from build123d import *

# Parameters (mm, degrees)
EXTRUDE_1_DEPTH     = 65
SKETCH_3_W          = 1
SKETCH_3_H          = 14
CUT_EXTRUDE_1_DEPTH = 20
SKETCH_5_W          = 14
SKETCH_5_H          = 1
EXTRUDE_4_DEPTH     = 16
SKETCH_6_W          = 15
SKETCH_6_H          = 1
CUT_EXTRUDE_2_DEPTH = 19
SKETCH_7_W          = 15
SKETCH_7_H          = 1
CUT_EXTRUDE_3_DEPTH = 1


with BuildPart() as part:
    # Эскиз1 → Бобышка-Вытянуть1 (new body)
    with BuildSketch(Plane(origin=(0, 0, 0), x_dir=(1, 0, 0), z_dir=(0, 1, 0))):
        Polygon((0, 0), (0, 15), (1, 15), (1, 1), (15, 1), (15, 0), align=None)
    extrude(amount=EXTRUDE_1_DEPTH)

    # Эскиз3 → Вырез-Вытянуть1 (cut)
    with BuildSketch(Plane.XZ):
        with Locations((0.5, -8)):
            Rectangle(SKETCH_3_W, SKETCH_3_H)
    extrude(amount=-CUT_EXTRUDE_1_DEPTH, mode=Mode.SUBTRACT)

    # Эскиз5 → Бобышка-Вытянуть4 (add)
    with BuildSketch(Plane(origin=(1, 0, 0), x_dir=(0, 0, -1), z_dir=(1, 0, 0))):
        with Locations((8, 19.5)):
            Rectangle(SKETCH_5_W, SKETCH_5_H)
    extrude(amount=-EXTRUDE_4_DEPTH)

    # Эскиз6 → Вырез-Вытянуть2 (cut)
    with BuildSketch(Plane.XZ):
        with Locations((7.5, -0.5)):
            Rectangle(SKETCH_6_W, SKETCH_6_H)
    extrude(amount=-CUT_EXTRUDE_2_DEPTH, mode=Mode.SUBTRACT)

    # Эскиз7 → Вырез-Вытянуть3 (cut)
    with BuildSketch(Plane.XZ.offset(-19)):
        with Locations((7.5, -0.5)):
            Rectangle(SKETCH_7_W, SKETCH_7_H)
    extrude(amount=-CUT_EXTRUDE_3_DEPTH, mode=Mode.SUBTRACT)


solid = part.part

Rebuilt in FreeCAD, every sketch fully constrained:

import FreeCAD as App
import Part
import Sketcher
Q = App.Units.Quantity


def add_polygon(sketch, points):
    """Adds a closed chain of lines whose ends are joined by coincident constraints."""
    first, n = sketch.GeometryCount, len(points)
    for a, b in zip(points, points[1:] + points[:1]):
        sketch.addGeometry(Part.LineSegment(App.Vector(*a, 0), App.Vector(*b, 0)), False)
    for i in range(n):
        sketch.addConstraint(Sketcher.Constraint("Coincident", first + i, 2, first + (i + 1) % n, 1))

doc = App.newDocument("Part")
body = doc.addObject("PartDesign::Body", "Body")

# Sketch on XZ plane
sketch1 = body.newObject("Sketcher::SketchObject", "Sketch")
sketch1.AttachmentSupport = (doc.getObject("XZ_Plane"), [""])
sketch1.MapMode = "FlatFace"
add_polygon(sketch1, [(0, -15), (0, 0), (15, 0), (15, -1), (1, -1), (1, -15)])  # lines 0-5
sketch1.addConstraint([
    Sketcher.Constraint("Vertical", 0),
    Sketcher.Constraint("Horizontal", 1),
    Sketcher.Constraint("Vertical", 2),
    Sketcher.Constraint("Horizontal", 3),
    Sketcher.Constraint("Vertical", 4),
    Sketcher.Constraint("Horizontal", 5),
    Sketcher.Constraint("Coincident", 0, 2, -1, 1),
    Sketcher.Constraint("Equal", 1, 0),
    Sketcher.Constraint("Equal", 5, 2),
    Sketcher.Constraint("DistanceX", 1, 1, 1, 2, Q("15 mm")),
    Sketcher.Constraint("DistanceX", 3, 2, 3, 1, Q("14 mm")),
])
pad1 = body.newObject("PartDesign::Pad", "Pad")
pad1.Profile = sketch1
pad1.Length = 65
pad1.Reversed = True

# Sketch on XZ plane
sketch2 = body.newObject("Sketcher::SketchObject", "Sketch001")
sketch2.AttachmentSupport = (doc.getObject("XZ_Plane"), [""])
sketch2.MapMode = "FlatFace"
add_polygon(sketch2, [(0, -1), (0, -15), (1, -15), (1, -1)])  # lines 0-3
sketch2.addConstraint([
    Sketcher.Constraint("Vertical", 0),
    Sketcher.Constraint("Horizontal", 1),
    Sketcher.Constraint("Vertical", 2),
    Sketcher.Constraint("Horizontal", 3),
    Sketcher.Constraint("PointOnObject", 0, 2, -2),
    Sketcher.Constraint("DistanceX", 1, 1, 1, 2, Q("1 mm")),
    Sketcher.Constraint("DistanceY", 0, 2, 0, 1, Q("14 mm")),
    Sketcher.Constraint("DistanceY", 0, 2, -1, 1, Q("15 mm")),
])
pocket1 = body.newObject("PartDesign::Pocket", "Pocket")
pocket1.Profile = sketch2
pocket1.Length = 20

# Sketch on YZ plane
sketch3 = body.newObject("Sketcher::SketchObject", "Sketch002")
sketch3.AttachmentSupport = (doc.getObject("YZ_Plane"), [""])
sketch3.MapMode = "FlatFace"
sketch3.AttachmentOffset = App.Placement(App.Vector(0, 0, 1), App.Rotation())
add_polygon(sketch3, [(20, -1), (19, -1), (19, -15), (20, -15)])  # lines 0-3
sketch3.addConstraint([
    Sketcher.Constraint("Horizontal", 0),
    Sketcher.Constraint("Vertical", 1),
    Sketcher.Constraint("Horizontal", 2),
    Sketcher.Constraint("Vertical", 3),
    Sketcher.Constraint("DistanceX", 0, 2, 0, 1, Q("1 mm")),
    Sketcher.Constraint("DistanceY", 1, 2, 1, 1, Q("14 mm")),
    Sketcher.Constraint("DistanceX", -1, 1, 0, 2, Q("19 mm")),
    Sketcher.Constraint("DistanceY", 0, 2, -1, 1, Q("1 mm")),
])
pad2 = body.newObject("PartDesign::Pad", "Pad001")
pad2.Profile = sketch3
pad2.Length = 16
pad2.Reversed = True

# Sketch on XZ plane
sketch4 = body.newObject("Sketcher::SketchObject", "Sketch003")
sketch4.AttachmentSupport = (doc.getObject("XZ_Plane"), [""])
sketch4.MapMode = "FlatFace"
add_polygon(sketch4, [(0, 0), (0, -1), (15, -1), (15, 0)])  # lines 0-3
sketch4.addConstraint([
    Sketcher.Constraint("Vertical", 0),
    Sketcher.Constraint("Horizontal", 1),
    Sketcher.Constraint("Vertical", 2),
    Sketcher.Constraint("Horizontal", 3),
    Sketcher.Constraint("Coincident", 3, 2, -1, 1),
    Sketcher.Constraint("DistanceX", 1, 1, 1, 2, Q("15 mm")),
    Sketcher.Constraint("DistanceY", 0, 2, 0, 1, Q("1 mm")),
])
pocket2 = body.newObject("PartDesign::Pocket", "Pocket001")
pocket2.Profile = sketch4
pocket2.Length = 19

# Sketch on XZ plane
sketch5 = body.newObject("Sketcher::SketchObject", "Sketch004")
sketch5.AttachmentSupport = (doc.getObject("XZ_Plane"), [""])
sketch5.MapMode = "FlatFace"
sketch5.AttachmentOffset = App.Placement(App.Vector(0, 0, -19), App.Rotation())
add_polygon(sketch5, [(0, 0), (0, -1), (15, -1), (15, 0)])  # lines 0-3
sketch5.addConstraint([
    Sketcher.Constraint("Vertical", 0),
    Sketcher.Constraint("Horizontal", 1),
    Sketcher.Constraint("Vertical", 2),
    Sketcher.Constraint("Horizontal", 3),
    Sketcher.Constraint("Coincident", 3, 2, -1, 1),
    Sketcher.Constraint("DistanceX", 1, 1, 1, 2, Q("15 mm")),
    Sketcher.Constraint("DistanceY", 0, 2, 0, 1, Q("1 mm")),
])
pocket3 = body.newObject("PartDesign::Pocket", "Pocket002")
pocket3.Profile = sketch5
pocket3.Length = 1

doc.recompute()
